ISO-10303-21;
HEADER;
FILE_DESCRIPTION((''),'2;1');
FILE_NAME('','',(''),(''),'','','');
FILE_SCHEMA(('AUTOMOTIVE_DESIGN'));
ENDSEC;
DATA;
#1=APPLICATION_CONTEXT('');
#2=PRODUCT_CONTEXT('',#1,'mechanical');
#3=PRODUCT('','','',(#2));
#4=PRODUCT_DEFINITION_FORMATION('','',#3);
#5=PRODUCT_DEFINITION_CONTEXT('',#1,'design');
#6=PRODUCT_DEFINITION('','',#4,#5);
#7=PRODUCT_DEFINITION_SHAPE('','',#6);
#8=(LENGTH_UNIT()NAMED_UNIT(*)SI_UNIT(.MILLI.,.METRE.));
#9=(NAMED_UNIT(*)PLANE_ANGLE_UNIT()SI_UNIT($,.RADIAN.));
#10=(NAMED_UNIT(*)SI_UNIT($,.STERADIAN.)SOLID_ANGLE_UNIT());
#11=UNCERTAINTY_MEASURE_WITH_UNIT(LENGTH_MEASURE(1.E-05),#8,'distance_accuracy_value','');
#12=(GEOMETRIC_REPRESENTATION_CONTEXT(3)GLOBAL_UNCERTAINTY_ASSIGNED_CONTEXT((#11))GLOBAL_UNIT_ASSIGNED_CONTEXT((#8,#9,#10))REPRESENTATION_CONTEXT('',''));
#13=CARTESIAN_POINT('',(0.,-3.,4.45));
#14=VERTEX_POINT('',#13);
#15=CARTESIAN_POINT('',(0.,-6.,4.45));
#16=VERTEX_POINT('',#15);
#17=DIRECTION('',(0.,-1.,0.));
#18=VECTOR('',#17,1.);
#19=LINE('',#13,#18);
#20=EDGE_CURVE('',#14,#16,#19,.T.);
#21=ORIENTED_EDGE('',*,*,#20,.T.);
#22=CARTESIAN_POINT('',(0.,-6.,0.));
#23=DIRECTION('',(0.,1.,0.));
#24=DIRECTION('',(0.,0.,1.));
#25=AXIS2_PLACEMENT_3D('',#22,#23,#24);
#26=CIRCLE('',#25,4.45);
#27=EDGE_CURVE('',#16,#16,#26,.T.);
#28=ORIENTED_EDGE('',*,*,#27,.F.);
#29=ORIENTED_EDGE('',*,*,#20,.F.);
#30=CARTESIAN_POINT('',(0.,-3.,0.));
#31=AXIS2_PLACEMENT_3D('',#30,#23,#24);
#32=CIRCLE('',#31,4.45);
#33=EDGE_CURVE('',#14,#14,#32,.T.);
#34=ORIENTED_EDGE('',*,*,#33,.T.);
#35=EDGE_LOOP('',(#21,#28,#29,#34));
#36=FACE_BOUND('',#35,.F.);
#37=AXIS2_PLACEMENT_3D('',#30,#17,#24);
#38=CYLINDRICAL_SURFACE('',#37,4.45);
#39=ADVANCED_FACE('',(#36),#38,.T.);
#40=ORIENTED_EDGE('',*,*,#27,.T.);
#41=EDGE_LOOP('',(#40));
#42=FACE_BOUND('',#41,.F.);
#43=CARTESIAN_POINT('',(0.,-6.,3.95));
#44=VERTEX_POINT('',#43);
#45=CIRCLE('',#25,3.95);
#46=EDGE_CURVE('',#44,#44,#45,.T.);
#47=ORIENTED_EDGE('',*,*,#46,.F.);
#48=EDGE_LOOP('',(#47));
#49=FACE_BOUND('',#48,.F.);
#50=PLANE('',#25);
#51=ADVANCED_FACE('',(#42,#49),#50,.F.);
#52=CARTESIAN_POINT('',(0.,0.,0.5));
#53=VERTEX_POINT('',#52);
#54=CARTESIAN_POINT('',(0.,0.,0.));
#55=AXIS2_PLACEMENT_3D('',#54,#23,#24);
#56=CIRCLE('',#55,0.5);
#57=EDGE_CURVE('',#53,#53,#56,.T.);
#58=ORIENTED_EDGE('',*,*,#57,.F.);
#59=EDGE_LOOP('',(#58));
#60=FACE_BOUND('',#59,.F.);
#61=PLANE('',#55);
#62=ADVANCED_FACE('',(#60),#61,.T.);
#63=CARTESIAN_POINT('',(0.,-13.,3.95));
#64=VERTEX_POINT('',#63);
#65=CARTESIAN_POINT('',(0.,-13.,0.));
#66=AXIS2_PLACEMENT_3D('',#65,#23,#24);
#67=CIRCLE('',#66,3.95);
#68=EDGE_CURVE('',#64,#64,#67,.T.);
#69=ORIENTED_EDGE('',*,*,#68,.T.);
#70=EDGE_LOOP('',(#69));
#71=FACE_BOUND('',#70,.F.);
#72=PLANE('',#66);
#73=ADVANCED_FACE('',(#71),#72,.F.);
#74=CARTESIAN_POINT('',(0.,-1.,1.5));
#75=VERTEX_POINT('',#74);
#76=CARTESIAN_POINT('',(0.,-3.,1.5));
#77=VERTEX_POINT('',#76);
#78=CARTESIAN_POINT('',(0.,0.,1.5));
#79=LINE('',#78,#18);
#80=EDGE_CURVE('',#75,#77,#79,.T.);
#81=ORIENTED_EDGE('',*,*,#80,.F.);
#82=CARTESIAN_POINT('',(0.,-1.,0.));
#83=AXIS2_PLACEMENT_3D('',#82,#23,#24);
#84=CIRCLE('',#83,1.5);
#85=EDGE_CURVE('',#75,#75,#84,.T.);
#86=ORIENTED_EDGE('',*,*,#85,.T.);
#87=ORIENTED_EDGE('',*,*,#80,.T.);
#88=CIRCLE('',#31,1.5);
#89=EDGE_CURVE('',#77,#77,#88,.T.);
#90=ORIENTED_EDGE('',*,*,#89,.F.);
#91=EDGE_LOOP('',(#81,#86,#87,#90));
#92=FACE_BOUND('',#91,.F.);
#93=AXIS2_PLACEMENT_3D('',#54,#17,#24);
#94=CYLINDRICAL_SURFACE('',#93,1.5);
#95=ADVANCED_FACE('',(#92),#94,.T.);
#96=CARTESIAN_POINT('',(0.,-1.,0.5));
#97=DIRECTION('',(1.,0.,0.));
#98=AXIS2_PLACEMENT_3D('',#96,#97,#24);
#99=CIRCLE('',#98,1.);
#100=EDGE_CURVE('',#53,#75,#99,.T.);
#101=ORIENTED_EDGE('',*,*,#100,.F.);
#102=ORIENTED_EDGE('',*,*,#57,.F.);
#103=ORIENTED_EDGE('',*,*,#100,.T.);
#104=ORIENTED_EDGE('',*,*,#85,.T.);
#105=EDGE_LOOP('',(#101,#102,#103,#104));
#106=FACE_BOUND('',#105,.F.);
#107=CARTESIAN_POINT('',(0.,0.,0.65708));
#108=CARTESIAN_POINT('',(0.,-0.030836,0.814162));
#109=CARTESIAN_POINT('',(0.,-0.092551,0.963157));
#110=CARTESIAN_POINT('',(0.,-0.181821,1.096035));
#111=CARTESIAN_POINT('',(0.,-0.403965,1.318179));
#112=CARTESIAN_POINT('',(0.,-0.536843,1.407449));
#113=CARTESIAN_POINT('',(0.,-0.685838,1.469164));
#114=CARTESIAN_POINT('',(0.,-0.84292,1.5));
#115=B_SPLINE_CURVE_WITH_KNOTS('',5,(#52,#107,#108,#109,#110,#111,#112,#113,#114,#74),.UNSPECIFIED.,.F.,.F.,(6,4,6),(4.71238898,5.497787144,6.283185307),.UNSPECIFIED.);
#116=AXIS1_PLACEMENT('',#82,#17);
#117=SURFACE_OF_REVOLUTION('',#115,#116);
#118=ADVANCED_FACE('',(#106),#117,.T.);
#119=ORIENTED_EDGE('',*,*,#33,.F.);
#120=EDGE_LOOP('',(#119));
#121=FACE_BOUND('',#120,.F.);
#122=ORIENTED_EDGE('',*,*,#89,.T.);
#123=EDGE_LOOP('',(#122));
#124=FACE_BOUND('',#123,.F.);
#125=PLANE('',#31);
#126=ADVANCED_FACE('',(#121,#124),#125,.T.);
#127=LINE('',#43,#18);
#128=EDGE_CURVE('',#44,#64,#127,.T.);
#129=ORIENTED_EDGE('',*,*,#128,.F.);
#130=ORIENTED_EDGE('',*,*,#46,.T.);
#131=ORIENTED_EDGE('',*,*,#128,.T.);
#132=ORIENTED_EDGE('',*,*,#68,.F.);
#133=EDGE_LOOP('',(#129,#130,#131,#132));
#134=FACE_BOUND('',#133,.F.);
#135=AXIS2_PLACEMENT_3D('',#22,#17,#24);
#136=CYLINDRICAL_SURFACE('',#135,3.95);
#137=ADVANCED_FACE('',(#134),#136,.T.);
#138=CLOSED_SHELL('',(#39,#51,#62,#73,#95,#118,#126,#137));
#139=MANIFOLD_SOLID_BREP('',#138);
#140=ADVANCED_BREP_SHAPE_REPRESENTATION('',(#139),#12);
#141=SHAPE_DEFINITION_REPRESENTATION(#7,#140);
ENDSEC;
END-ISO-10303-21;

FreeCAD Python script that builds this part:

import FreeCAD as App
import Part
import Sketcher

V = App.Vector


def edges_at(feature, points):
    """Names of the edges that pass closest to the given points."""
    edges = feature.Shape.Edges
    near = lambda p: min(range(len(edges)), key=lambda i: edges[i].distToShape(Part.Vertex(*p))[0])
    return sorted({f"Edge{near(p) + 1}" for p in points})


def add_polygon(sketch, points):
    """Adds a closed chain of lines whose ends are joined by coincident constraints."""
    first, n = sketch.GeometryCount, len(points)
    for a, b in zip(points, points[1:] + points[:1]):
        sketch.addGeometry(Part.LineSegment(App.Vector(*a, 0), App.Vector(*b, 0)), False)
    for i in range(n):
        sketch.addConstraint(Sketcher.Constraint("Coincident", first + i, 2, first + (i + 1) % n, 1))

doc = App.newDocument("Part")
body = doc.addObject("PartDesign::Body", "Body")

# Sketch on YZ plane
sketch1 = body.newObject("Sketcher::SketchObject", "Sketch")
sketch1.AttachmentSupport = (doc.getObject("YZ_Plane"), [""])
sketch1.MapMode = "FlatFace"
add_polygon(sketch1, [(-13, 0), (0, 0), (0, 1.5), (-3, 1.5), (-3, 4.5), (-6, 4.5), (-6, 4), (-13, 4)])  # lines 0-7
sketch1.addConstraint([
    Sketcher.Constraint("Horizontal", 0),
    Sketcher.Constraint("Vertical", 1),
    Sketcher.Constraint("Horizontal", 2),
    Sketcher.Constraint("Vertical", 3),
    Sketcher.Constraint("Horizontal", 4),
    Sketcher.Constraint("Vertical", 5),
    Sketcher.Constraint("Horizontal", 6),
    Sketcher.Constraint("Vertical", 7),
    Sketcher.Constraint("Coincident", 0, 2, -1, 1),
    Sketcher.Constraint("Equal", 2, 4),
    Sketcher.Constraint("DistanceX", 0, 1, 0, 2, 13.0),
    Sketcher.Constraint("DistanceX", 2, 2, 2, 1, 3.0),
    Sketcher.Constraint("DistanceY", 1, 1, 1, 2, 1.5),
    Sketcher.Constraint("DistanceY", 5, 2, 5, 1, 0.5),
    Sketcher.Constraint("DistanceY", 3, 1, 3, 2, 2.95),
])
revolution = body.newObject("PartDesign::Revolution", "Revolution")
revolution.Profile = sketch1
revolution.ReferenceAxis = (sketch1, ["H_Axis"])
revolution.Angle = 360
doc.recompute()

fillet = body.newObject("PartDesign::Fillet", "Fillet")
fillet.Base = (revolution, edges_at(revolution, [(0, 0, -1.5)]))
fillet.Radius = 1

doc.recompute()
